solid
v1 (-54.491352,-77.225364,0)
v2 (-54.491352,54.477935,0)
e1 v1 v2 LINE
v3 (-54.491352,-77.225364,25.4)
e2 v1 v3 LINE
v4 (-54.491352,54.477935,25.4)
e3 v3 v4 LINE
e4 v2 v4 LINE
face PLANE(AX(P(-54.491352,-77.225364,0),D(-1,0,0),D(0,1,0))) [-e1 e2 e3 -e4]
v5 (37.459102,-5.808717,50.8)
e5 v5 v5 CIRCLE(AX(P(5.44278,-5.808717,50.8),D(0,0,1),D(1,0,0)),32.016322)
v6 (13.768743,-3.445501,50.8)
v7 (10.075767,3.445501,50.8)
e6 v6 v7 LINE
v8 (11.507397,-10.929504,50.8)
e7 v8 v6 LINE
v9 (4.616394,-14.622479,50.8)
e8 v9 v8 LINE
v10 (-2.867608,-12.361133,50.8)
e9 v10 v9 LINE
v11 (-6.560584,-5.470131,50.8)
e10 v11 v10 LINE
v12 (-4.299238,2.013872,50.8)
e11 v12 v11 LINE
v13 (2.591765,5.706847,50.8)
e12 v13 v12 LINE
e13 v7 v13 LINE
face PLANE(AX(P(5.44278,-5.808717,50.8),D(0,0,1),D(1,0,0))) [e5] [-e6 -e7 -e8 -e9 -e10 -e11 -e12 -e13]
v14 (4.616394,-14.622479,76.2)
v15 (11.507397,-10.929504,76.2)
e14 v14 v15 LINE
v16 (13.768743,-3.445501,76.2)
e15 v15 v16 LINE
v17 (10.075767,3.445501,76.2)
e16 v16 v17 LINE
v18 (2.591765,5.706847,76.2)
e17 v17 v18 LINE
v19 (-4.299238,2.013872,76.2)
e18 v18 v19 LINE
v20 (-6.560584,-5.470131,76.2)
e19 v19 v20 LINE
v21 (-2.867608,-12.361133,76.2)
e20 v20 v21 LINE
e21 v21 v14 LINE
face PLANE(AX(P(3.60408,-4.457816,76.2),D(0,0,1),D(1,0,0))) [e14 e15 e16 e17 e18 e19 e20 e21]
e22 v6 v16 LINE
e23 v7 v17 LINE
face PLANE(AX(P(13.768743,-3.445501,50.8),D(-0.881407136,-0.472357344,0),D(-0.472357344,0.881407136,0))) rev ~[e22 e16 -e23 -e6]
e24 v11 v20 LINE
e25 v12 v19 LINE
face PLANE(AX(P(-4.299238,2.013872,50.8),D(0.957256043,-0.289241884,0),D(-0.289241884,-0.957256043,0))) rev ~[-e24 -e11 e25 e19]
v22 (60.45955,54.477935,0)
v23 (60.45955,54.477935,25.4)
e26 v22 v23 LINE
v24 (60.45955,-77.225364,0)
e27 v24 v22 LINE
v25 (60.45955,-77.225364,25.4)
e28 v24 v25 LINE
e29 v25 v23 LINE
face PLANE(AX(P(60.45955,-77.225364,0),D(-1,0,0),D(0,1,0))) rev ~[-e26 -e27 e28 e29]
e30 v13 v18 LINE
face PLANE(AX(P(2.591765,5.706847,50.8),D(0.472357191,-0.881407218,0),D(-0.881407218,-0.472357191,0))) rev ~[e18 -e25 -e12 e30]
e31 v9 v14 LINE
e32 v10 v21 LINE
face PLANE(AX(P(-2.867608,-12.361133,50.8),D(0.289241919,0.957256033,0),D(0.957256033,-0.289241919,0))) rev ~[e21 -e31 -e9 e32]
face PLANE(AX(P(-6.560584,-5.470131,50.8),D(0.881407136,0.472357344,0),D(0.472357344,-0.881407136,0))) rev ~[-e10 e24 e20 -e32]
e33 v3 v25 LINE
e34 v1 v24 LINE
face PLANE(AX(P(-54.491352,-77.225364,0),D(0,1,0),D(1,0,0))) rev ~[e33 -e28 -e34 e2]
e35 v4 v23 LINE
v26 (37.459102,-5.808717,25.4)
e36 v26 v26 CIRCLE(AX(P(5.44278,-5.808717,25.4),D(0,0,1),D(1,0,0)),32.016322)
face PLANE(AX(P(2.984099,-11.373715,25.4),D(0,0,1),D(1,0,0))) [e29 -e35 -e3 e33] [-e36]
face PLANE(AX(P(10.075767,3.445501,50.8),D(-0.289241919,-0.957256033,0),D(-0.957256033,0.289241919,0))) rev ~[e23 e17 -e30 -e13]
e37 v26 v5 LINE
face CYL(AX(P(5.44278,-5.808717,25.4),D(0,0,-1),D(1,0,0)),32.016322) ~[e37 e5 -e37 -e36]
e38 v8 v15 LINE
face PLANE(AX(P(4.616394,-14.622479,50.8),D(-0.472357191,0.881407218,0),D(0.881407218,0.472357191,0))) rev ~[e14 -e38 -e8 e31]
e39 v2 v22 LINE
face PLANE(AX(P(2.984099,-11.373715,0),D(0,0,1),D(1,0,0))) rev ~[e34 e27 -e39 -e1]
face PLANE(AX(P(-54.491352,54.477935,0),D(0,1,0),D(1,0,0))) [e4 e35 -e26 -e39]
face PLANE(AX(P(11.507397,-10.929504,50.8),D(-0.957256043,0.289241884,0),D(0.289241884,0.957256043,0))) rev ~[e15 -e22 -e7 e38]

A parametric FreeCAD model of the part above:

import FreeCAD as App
import Part
import Sketcher
Q = App.Units.Quantity

doc = App.newDocument("Part")
body = doc.addObject("PartDesign::Body", "Body")

# Sketch on XY plane
sketch1 = doc.addObject("Sketcher::SketchObject", "Sketch")
body.addObject(sketch1)
sketch1.AttachmentSupport = (doc.XY_Plane, [""])
sketch1.MapMode = "FlatFace"
sketch1.addGeometry(Part.LineSegment(App.Vector(-54, 54, 0), App.Vector(-54, -77, 0)), False)
sketch1.addGeometry(Part.LineSegment(App.Vector(-54, -77, 0), App.Vector(60, -77, 0)), False)
sketch1.addGeometry(Part.LineSegment(App.Vector(60, -77, 0), App.Vector(60, 54, 0)), False)
sketch1.addGeometry(Part.LineSegment(App.Vector(60, 54, 0), App.Vector(-54, 54, 0)), False)
sketch1.addConstraint(Sketcher.Constraint("Coincident", 0, 2, 1, 1))
sketch1.addConstraint(Sketcher.Constraint("Coincident", 1, 2, 2, 1))
sketch1.addConstraint(Sketcher.Constraint("Coincident", 2, 2, 3, 1))
sketch1.addConstraint(Sketcher.Constraint("Coincident", 3, 2, 0, 1))
sketch1.addConstraint(Sketcher.Constraint("Vertical", 0))
sketch1.addConstraint(Sketcher.Constraint("Horizontal", 1))
sketch1.addConstraint(Sketcher.Constraint("Vertical", 2))
sketch1.addConstraint(Sketcher.Constraint("Horizontal", 3))
sketch1.addConstraint(Sketcher.Constraint("DistanceX", 1, 1, 1, 2, Q("114.950902 mm")))
sketch1.addConstraint(Sketcher.Constraint("DistanceY", 0, 2, 0, 1, Q("131.703299 mm")))
sketch1.addConstraint(Sketcher.Constraint("DistanceX", -1, 1, 1, 2, Q("60.45955 mm")))
sketch1.addConstraint(Sketcher.Constraint("DistanceY", 0, 2, -1, 1, Q("77.225364 mm")))
pad1 = doc.addObject("PartDesign::Pad", "Pad")
body.addObject(pad1)
pad1.Profile = sketch1
pad1.Length = Q("1 in")

# Sketch on XY plane
sketch2 = doc.addObject("Sketcher::SketchObject", "Sketch001")
body.addObject(sketch2)
sketch2.AttachmentSupport = (doc.XY_Plane, [""])
sketch2.MapMode = "FlatFace"
sketch2.AttachmentOffset = App.Placement(App.Vector(0, 0, 1 * 25.4), App.Rotation())
sketch2.addGeometry(Part.Circle(App.Vector(5, -6, 0), App.Vector(0, 0, 1), 32), False)
sketch2.addConstraint(Sketcher.Constraint("Diameter", 0, Q("64.032644 mm")))
sketch2.addConstraint(Sketcher.Constraint("DistanceX", -1, 1, 0, 3, Q("5.44278 mm")))
sketch2.addConstraint(Sketcher.Constraint("DistanceY", 0, 3, -1, 1, Q("5.808717 mm")))
pad2 = doc.addObject("PartDesign::Pad", "Pad001")
body.addObject(pad2)
pad2.Profile = sketch2
pad2.Length = Q("1 in")

# Sketch on XY plane
sketch3 = doc.addObject("Sketcher::SketchObject", "Sketch002")
body.addObject(sketch3)
sketch3.AttachmentSupport = (doc.XY_Plane, [""])
sketch3.MapMode = "FlatFace"
sketch3.AttachmentOffset = App.Placement(App.Vector(0, 0, 2 * 25.4), App.Rotation())
sketch3.addGeometry(Part.LineSegment(App.Vector(14, -3, 0), App.Vector(10, 3, 0)), False)
sketch3.addGeometry(Part.LineSegment(App.Vector(10, 3, 0), App.Vector(3, 6, 0)), False)
sketch3.addGeometry(Part.LineSegment(App.Vector(3, 6, 0), App.Vector(-4, 2, 0)), False)
sketch3.addGeometry(Part.LineSegment(App.Vector(-4, 2, 0), App.Vector(-7, -5, 0)), False)
sketch3.addGeometry(Part.LineSegment(App.Vector(-7, -5, 0), App.Vector(-3, -12, 0)), False)
sketch3.addGeometry(Part.LineSegment(App.Vector(-3, -12, 0), App.Vector(5, -15, 0)), False)
sketch3.addGeometry(Part.LineSegment(App.Vector(5, -15, 0), App.Vector(12, -11, 0)), False)
sketch3.addGeometry(Part.LineSegment(App.Vector(12, -11, 0), App.Vector(14, -3, 0)), False)
sketch3.addConstraint(Sketcher.Constraint("Coincident", 0, 2, 1, 1))
sketch3.addConstraint(Sketcher.Constraint("Coincident", 1, 2, 2, 1))
sketch3.addConstraint(Sketcher.Constraint("Coincident", 2, 2, 3, 1))
sketch3.addConstraint(Sketcher.Constraint("Coincident", 3, 2, 4, 1))
sketch3.addConstraint(Sketcher.Constraint("Coincident", 4, 2, 5, 1))
sketch3.addConstraint(Sketcher.Constraint("Coincident", 5, 2, 6, 1))
sketch3.addConstraint(Sketcher.Constraint("Coincident", 6, 2, 7, 1))
sketch3.addConstraint(Sketcher.Constraint("Coincident", 7, 2, 0, 1))
sketch3.addConstraint(Sketcher.Constraint("Perpendicular", 0, 2))
sketch3.addConstraint(Sketcher.Constraint("Perpendicular", 1, 3))
sketch3.addConstraint(Sketcher.Constraint("Perpendicular", 2, 4))
sketch3.addConstraint(Sketcher.Constraint("Perpendicular", 3, 5))
sketch3.addConstraint(Sketcher.Constraint("Perpendicular", 4, 6))
sketch3.addConstraint(Sketcher.Constraint("Perpendicular", 5, 7))
sketch3.addConstraint(Sketcher.Constraint("Equal", 0, 1))
sketch3.addConstraint(Sketcher.Constraint("Equal", 1, 2))
sketch3.addConstraint(Sketcher.Constraint("Equal", 2, 3))
sketch3.addConstraint(Sketcher.Constraint("Equal", 3, 4))
sketch3.addConstraint(Sketcher.Constraint("Equal", 4, 5))
sketch3.addConstraint(Sketcher.Constraint("DistanceY", -1, 1, 0, 2, Q("3.445501 mm")))
sketch3.addConstraint(Sketcher.Constraint("DistanceY", 7, 2, -1, 1, Q("3.445501 mm")))
sketch3.addConstraint(Sketcher.Constraint("DistanceY", 3, 2, -1, 1, Q("5.470131 mm")))
sketch3.addConstraint(Sketcher.Constraint("DistanceX", 4, 2, -1, 1, Q("2.867608 mm")))
sketch3.addConstraint(Sketcher.Constraint("DistanceY", 5, 2, -1, 1, Q("14.622479 mm")))
pad3 = doc.addObject("PartDesign::Pad", "Pad002")
body.addObject(pad3)
pad3.Profile = sketch3
pad3.Length = Q("1 in")

doc.recompute()
